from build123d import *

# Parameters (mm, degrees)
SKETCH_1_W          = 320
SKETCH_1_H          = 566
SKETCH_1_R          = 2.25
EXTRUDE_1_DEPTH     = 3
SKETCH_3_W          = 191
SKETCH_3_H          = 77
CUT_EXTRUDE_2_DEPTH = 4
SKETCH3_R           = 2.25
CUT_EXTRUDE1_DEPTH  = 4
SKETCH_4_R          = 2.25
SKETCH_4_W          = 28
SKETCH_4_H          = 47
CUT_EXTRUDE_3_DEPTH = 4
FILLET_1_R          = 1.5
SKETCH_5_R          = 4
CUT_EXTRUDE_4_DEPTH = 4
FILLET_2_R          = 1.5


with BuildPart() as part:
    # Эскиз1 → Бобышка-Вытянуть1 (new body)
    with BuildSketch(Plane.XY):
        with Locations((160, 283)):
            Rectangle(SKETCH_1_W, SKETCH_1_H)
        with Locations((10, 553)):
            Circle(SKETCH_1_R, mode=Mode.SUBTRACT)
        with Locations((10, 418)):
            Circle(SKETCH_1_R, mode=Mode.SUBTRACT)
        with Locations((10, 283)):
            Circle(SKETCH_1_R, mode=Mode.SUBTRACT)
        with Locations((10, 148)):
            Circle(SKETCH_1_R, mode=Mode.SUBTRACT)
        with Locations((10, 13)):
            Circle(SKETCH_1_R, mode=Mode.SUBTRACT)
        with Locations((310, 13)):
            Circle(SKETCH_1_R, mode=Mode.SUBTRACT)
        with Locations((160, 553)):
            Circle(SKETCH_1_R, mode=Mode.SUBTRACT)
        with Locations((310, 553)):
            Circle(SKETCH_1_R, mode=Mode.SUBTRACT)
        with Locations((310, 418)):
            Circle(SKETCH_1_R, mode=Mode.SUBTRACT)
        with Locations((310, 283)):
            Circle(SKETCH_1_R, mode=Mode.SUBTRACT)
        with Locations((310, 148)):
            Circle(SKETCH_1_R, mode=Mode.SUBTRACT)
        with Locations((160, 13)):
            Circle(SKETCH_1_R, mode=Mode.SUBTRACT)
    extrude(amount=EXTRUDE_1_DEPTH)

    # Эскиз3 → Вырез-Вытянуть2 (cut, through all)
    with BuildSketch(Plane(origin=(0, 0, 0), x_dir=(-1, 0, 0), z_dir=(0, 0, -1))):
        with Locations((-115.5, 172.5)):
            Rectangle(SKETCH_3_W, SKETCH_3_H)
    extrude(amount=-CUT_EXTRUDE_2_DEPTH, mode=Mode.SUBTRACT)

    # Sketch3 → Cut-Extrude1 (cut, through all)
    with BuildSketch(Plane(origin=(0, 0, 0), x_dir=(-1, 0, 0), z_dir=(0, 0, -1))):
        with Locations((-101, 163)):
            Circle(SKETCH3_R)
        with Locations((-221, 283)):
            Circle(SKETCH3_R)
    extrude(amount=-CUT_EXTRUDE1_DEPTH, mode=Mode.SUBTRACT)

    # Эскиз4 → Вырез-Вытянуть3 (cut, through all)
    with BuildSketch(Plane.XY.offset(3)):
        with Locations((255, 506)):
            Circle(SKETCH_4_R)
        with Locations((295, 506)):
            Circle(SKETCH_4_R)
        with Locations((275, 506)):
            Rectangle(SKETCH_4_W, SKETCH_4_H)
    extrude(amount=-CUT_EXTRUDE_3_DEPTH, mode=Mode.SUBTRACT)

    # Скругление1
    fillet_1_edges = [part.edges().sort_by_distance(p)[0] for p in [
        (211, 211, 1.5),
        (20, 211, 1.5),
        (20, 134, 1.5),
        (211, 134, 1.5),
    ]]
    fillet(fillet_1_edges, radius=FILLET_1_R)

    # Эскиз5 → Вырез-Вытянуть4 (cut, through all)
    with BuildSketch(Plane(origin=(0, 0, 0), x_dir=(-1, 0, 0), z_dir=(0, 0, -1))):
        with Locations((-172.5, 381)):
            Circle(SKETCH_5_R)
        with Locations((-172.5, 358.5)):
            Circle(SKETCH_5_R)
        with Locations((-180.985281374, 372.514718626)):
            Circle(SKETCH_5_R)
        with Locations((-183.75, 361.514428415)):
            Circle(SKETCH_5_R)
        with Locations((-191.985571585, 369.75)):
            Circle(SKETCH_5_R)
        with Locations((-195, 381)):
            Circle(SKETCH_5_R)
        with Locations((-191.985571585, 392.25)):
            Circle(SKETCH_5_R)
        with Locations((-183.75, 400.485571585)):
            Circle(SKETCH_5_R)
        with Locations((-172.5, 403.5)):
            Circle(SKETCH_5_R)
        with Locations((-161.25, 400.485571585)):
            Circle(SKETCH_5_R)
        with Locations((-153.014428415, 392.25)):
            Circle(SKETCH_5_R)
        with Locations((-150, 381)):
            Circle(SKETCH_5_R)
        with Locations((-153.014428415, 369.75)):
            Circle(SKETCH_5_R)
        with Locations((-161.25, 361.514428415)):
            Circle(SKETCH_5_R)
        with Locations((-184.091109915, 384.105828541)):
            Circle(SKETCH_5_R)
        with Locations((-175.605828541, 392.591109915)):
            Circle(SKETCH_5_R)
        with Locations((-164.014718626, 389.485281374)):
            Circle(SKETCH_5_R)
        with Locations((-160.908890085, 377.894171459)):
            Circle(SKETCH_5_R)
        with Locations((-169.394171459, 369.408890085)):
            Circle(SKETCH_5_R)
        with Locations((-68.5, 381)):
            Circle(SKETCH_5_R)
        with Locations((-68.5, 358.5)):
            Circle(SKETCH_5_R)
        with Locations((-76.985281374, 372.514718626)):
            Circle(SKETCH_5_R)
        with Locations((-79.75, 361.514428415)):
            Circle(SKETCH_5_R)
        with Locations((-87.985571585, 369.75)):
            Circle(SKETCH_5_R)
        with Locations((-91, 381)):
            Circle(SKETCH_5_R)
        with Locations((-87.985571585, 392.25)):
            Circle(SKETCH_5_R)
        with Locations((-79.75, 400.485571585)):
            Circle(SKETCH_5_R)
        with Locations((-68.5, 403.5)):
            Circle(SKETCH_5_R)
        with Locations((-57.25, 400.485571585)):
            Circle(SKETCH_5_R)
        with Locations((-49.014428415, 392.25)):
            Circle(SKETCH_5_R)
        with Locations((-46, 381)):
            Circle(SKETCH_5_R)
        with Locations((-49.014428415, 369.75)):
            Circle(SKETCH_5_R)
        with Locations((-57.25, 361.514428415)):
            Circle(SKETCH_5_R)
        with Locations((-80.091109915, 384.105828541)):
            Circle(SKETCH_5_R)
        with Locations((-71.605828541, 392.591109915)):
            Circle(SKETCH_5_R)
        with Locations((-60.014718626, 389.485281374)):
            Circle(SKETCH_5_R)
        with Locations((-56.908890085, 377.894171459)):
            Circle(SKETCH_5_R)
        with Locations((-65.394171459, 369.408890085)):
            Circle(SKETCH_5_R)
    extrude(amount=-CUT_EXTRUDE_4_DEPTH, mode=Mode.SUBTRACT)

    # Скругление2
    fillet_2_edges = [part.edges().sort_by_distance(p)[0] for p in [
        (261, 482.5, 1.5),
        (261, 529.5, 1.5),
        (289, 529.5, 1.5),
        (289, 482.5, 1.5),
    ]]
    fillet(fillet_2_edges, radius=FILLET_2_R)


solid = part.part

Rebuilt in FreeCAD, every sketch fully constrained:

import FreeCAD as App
import Part
import Sketcher

V = App.Vector
Q = App.Units.Quantity


def edges_at(feature, points):
    """Names of the edges that pass closest to the given points."""
    edges = feature.Shape.Edges
    near = lambda p: min(range(len(edges)), key=lambda i: edges[i].distToShape(Part.Vertex(*p))[0])
    return sorted({f"Edge{near(p) + 1}" for p in points})


def add_polygon(sketch, points):
    """Adds a closed chain of lines whose ends are joined by coincident constraints."""
    first, n = sketch.GeometryCount, len(points)
    for a, b in zip(points, points[1:] + points[:1]):
        sketch.addGeometry(Part.LineSegment(App.Vector(*a, 0), App.Vector(*b, 0)), False)
    for i in range(n):
        sketch.addConstraint(Sketcher.Constraint("Coincident", first + i, 2, first + (i + 1) % n, 1))

doc = App.newDocument("Part")
body = doc.addObject("PartDesign::Body", "Body")

# Sketch on XY plane
sketch1 = doc.addObject("Sketcher::SketchObject", "Sketch")
body.addObject(sketch1)
sketch1.AttachmentSupport = (doc.XY_Plane, [""])
sketch1.MapMode = "FlatFace"
add_polygon(sketch1, [(0, 566), (0, 0), (320, 0), (320, 566)])  # lines 0-3
sketch1.addGeometry(Part.Circle(V(10, 13, 0), V(0, 0, 1), 2.2), False)  # 4
sketch1.addGeometry(Part.Circle(V(10, 148, 0), V(0, 0, 1), 2.2), False)  # 5
sketch1.addGeometry(Part.Circle(V(160, 13, 0), V(0, 0, 1), 2.2), False)  # 6
sketch1.addGeometry(Part.Circle(V(310, 13, 0), V(0, 0, 1), 2.2), False)  # 7
sketch1.addGeometry(Part.Circle(V(310, 148, 0), V(0, 0, 1), 2.2), False)  # 8
sketch1.addGeometry(Part.Circle(V(10, 283, 0), V(0, 0, 1), 2.2), False)  # 9
sketch1.addGeometry(Part.Circle(V(10, 418, 0), V(0, 0, 1), 2.2), False)  # 10
sketch1.addGeometry(Part.Circle(V(10, 553, 0), V(0, 0, 1), 2.2), False)  # 11
sketch1.addGeometry(Part.Circle(V(310, 283, 0), V(0, 0, 1), 2.2), False)  # 12
sketch1.addGeometry(Part.Circle(V(310, 418, 0), V(0, 0, 1), 2.2), False)  # 13
sketch1.addGeometry(Part.Circle(V(160, 553, 0), V(0, 0, 1), 2.2), False)  # 14
sketch1.addGeometry(Part.Circle(V(310, 553, 0), V(0, 0, 1), 2.2), False)  # 15
sketch1.addConstraint([
    Sketcher.Constraint("Vertical", 0),
    Sketcher.Constraint("Horizontal", 1),
    Sketcher.Constraint("Vertical", 2),
    Sketcher.Constraint("Horizontal", 3),
    Sketcher.Constraint("Coincident", 0, 2, -1, 1),
    Sketcher.Constraint("Equal", 4, 5),
    Sketcher.Constraint("Equal", 5, 6),
    Sketcher.Constraint("Equal", 6, 7),
    Sketcher.Constraint("Equal", 7, 8),
    Sketcher.Constraint("Equal", 8, 9),
    Sketcher.Constraint("Equal", 9, 10),
    Sketcher.Constraint("Equal", 10, 11),
    Sketcher.Constraint("Equal", 11, 12),
    Sketcher.Constraint("Equal", 12, 13),
    Sketcher.Constraint("Equal", 13, 14),
    Sketcher.Constraint("Equal", 14, 15),
    Sketcher.Constraint("Horizontal", 4, 3, 6, 3),
    Sketcher.Constraint("Horizontal", 6, 3, 7, 3),
    Sketcher.Constraint("Horizontal", 5, 3, 8, 3),
    Sketcher.Constraint("Horizontal", 9, 3, 12, 3),
    Sketcher.Constraint("Horizontal", 10, 3, 13, 3),
    Sketcher.Constraint("Horizontal", 11, 3, 14, 3),
    Sketcher.Constraint("Horizontal", 14, 3, 15, 3),
    Sketcher.Constraint("Vertical", 4, 3, 5, 3),
    Sketcher.Constraint("Vertical", 7, 3, 8, 3),
    Sketcher.Constraint("Vertical", 5, 3, 9, 3),
    Sketcher.Constraint("Vertical", 9, 3, 10, 3),
    Sketcher.Constraint("Vertical", 10, 3, 11, 3),
    Sketcher.Constraint("Vertical", 8, 3, 12, 3),
    Sketcher.Constraint("Vertical", 12, 3, 13, 3),
    Sketcher.Constraint("Vertical", 6, 3, 14, 3),
    Sketcher.Constraint("Vertical", 13, 3, 15, 3),
    Sketcher.Constraint("Diameter", 4, Q("4.5 mm")),
    Sketcher.Constraint("DistanceX", 1, 1, 1, 2, Q("320 mm")),
    Sketcher.Constraint("DistanceY", 0, 2, 0, 1, Q("566 mm")),
    Sketcher.Constraint("DistanceX", -1, 1, 4, 3, Q("10 mm")),
    Sketcher.Constraint("DistanceY", -1, 1, 4, 3, Q("13 mm")),
    Sketcher.Constraint("DistanceY", -1, 1, 5, 3, Q("148 mm")),
    Sketcher.Constraint("DistanceX", -1, 1, 6, 3, Q("160 mm")),
    Sketcher.Constraint("DistanceX", -1, 1, 7, 3, Q("310 mm")),
    Sketcher.Constraint("DistanceY", -1, 1, 9, 3, Q("283 mm")),
    Sketcher.Constraint("DistanceY", -1, 1, 10, 3, Q("418 mm")),
    Sketcher.Constraint("DistanceY", -1, 1, 11, 3, Q("553 mm")),
])
pad1 = doc.addObject("PartDesign::Pad", "Pad")
body.addObject(pad1)
pad1.Profile = sketch1
pad1.Length = 3

# Sketch on XY plane
sketch2 = doc.addObject("Sketcher::SketchObject", "Sketch001")
body.addObject(sketch2)
sketch2.AttachmentSupport = (doc.XY_Plane, [""])
sketch2.MapMode = "FlatFace"
add_polygon(sketch2, [(211, 211), (211, 134), (20, 134), (20, 211)])  # lines 0-3
sketch2.addConstraint([
    Sketcher.Constraint("Vertical", 0),
    Sketcher.Constraint("Horizontal", 1),
    Sketcher.Constraint("Vertical", 2),
    Sketcher.Constraint("Horizontal", 3),
    Sketcher.Constraint("DistanceX", 1, 2, 1, 1, Q("191 mm")),
    Sketcher.Constraint("DistanceY", 0, 2, 0, 1, Q("77 mm")),
    Sketcher.Constraint("DistanceX", -1, 1, 0, 2, Q("211 mm")),
    Sketcher.Constraint("DistanceY", -1, 1, 0, 2, Q("134 mm")),
])
pocket1 = doc.addObject("PartDesign::Pocket", "Pocket")
body.addObject(pocket1)
pocket1.Profile = sketch2
pocket1.Type = "ThroughAll"
pocket1.Reversed = True

# Sketch on XY plane
sketch3 = doc.addObject("Sketcher::SketchObject", "Sketch002")
body.addObject(sketch3)
sketch3.AttachmentSupport = (doc.XY_Plane, [""])
sketch3.MapMode = "FlatFace"
sketch3.addGeometry([
    Part.Circle(V(101, 163, 0), V(0, 0, 1), 2.2),
    Part.Circle(V(221, 283, 0), V(0, 0, 1), 2.2),
], False)
sketch3.addConstraint([
    Sketcher.Constraint("Equal", 0, 1),
    Sketcher.Constraint("Diameter", 0, Q("4.5 mm")),
    Sketcher.Constraint("DistanceX", -1, 1, 0, 3, Q("101 mm")),
    Sketcher.Constraint("DistanceY", -1, 1, 0, 3, Q("163 mm")),
    Sketcher.Constraint("DistanceX", -1, 1, 1, 3, Q("221 mm")),
    Sketcher.Constraint("DistanceY", -1, 1, 1, 3, Q("283 mm")),
])
pocket2 = doc.addObject("PartDesign::Pocket", "Pocket001")
body.addObject(pocket2)
pocket2.Profile = sketch3
pocket2.Type = "ThroughAll"
pocket2.Reversed = True

# Sketch on XY plane
sketch4 = doc.addObject("Sketcher::SketchObject", "Sketch003")
body.addObject(sketch4)
sketch4.AttachmentSupport = (doc.XY_Plane, [""])
sketch4.MapMode = "FlatFace"
sketch4.AttachmentOffset = App.Placement(V(0, 0, 3), App.Rotation())
sketch4.addGeometry(Part.Circle(V(255, 506, 0), V(0, 0, 1), 2.2), False)  # 0
sketch4.addGeometry(Part.Circle(V(295, 506, 0), V(0, 0, 1), 2.2), False)  # 1
add_polygon(sketch4, [(261, 529.5), (261, 482.5), (289, 482.5), (289, 529.5)])  # lines 2-5
sketch4.addConstraint([
    Sketcher.Constraint("Vertical", 2),
    Sketcher.Constraint("Horizontal", 3),
    Sketcher.Constraint("Vertical", 4),
    Sketcher.Constraint("Horizontal", 5),
    Sketcher.Constraint("Equal", 0, 1),
    Sketcher.Constraint("Horizontal", 0, 3, 1, 3),
    Sketcher.Constraint("Diameter", 0, Q("4.5 mm")),
    Sketcher.Constraint("DistanceX", 3, 1, 3, 2, Q("28 mm")),
    Sketcher.Constraint("DistanceY", 2, 2, 2, 1, Q("47 mm")),
    Sketcher.Constraint("DistanceX", -1, 1, 0, 3, Q("255 mm")),
    Sketcher.Constraint("DistanceY", -1, 1, 0, 3, Q("506 mm")),
    Sketcher.Constraint("DistanceX", -1, 1, 1, 3, Q("295 mm")),
    Sketcher.Constraint("DistanceX", -1, 1, 2, 2, Q("261 mm")),
    Sketcher.Constraint("DistanceY", -1, 1, 2, 2, Q("482.5 mm")),
])
pocket3 = doc.addObject("PartDesign::Pocket", "Pocket002")
body.addObject(pocket3)
pocket3.Profile = sketch4
pocket3.Type = "ThroughAll"
doc.recompute()

fillet = doc.addObject("PartDesign::Fillet", "Fillet")
body.addObject(fillet)
fillet.Base = (pocket3, edges_at(pocket3, [
    (211, 211, 1.5),
    (20, 211, 1.5),
    (20, 134, 1.5),
    (211, 134, 1.5),
]))
fillet.Radius = 1.5

# Sketch on XY plane
sketch5 = doc.addObject("Sketcher::SketchObject", "Sketch004")
body.addObject(sketch5)
sketch5.AttachmentSupport = (doc.XY_Plane, [""])
sketch5.MapMode = "FlatFace"
sketch5.addGeometry([
    Part.Circle(V(172.5, 381, 0), V(0, 0, 1), 4),  # 0
    Part.Circle(V(172.5, 358.5, 0), V(0, 0, 1), 4),  # 1
    Part.Circle(V(181, 372.5, 0), V(0, 0, 1), 4),  # 2
    Part.Circle(V(183.8, 361.5, 0), V(0, 0, 1), 4),  # 3
    Part.Circle(V(192, 369.8, 0), V(0, 0, 1), 4),  # 4
    Part.Circle(V(195, 381, 0), V(0, 0, 1), 4),  # 5
    Part.Circle(V(192, 392.2, 0), V(0, 0, 1), 4),  # 6
    Part.Circle(V(183.8, 400.5, 0), V(0, 0, 1), 4),  # 7
    Part.Circle(V(172.5, 403.5, 0), V(0, 0, 1), 4),  # 8
    Part.Circle(V(161.2, 400.5, 0), V(0, 0, 1), 4),  # 9
    Part.Circle(V(153, 392.2, 0), V(0, 0, 1), 4),  # 10
    Part.Circle(V(150, 381, 0), V(0, 0, 1), 4),  # 11
    Part.Circle(V(153, 369.8, 0), V(0, 0, 1), 4),  # 12
    Part.Circle(V(161.2, 361.5, 0), V(0, 0, 1), 4),  # 13
    Part.Circle(V(184.1, 384.1, 0), V(0, 0, 1), 4),  # 14
    Part.Circle(V(175.6, 392.6, 0), V(0, 0, 1), 4),  # 15
    Part.Circle(V(164, 389.5, 0), V(0, 0, 1), 4),  # 16
    Part.Circle(V(160.9, 377.9, 0), V(0, 0, 1), 4),  # 17
    Part.Circle(V(169.4, 369.4, 0), V(0, 0, 1), 4),  # 18
    Part.Circle(V(68.5, 381, 0), V(0, 0, 1), 4),  # 19
    Part.Circle(V(68.5, 358.5, 0), V(0, 0, 1), 4),  # 20
    Part.Circle(V(77, 372.5, 0), V(0, 0, 1), 4),  # 21
    Part.Circle(V(79.8, 361.5, 0), V(0, 0, 1), 4),  # 22
    Part.Circle(V(88, 369.8, 0), V(0, 0, 1), 4),  # 23
    Part.Circle(V(91, 381, 0), V(0, 0, 1), 4),  # 24
    Part.Circle(V(88, 392.2, 0), V(0, 0, 1), 4),  # 25
    Part.Circle(V(79.8, 400.5, 0), V(0, 0, 1), 4),  # 26
    Part.Circle(V(68.5, 403.5, 0), V(0, 0, 1), 4),  # 27
    Part.Circle(V(57.2, 400.5, 0), V(0, 0, 1), 4),  # 28
    Part.Circle(V(49, 392.2, 0), V(0, 0, 1), 4),  # 29
    Part.Circle(V(46, 381, 0), V(0, 0, 1), 4),  # 30
    Part.Circle(V(49, 369.8, 0), V(0, 0, 1), 4),  # 31
    Part.Circle(V(57.2, 361.5, 0), V(0, 0, 1), 4),  # 32
    Part.Circle(V(80.1, 384.1, 0), V(0, 0, 1), 4),  # 33
    Part.Circle(V(71.6, 392.6, 0), V(0, 0, 1), 4),  # 34
    Part.Circle(V(60, 389.5, 0), V(0, 0, 1), 4),  # 35
    Part.Circle(V(56.9, 377.9, 0), V(0, 0, 1), 4),  # 36
    Part.Circle(V(65.4, 369.4, 0), V(0, 0, 1), 4),  # 37
], False)
sketch5.addConstraint([
    Sketcher.Constraint("Equal", 0, 1),
    Sketcher.Constraint("Equal", 1, 2),
    Sketcher.Constraint("Equal", 2, 3),
    Sketcher.Constraint("Equal", 3, 4),
    Sketcher.Constraint("Equal", 4, 5),
    Sketcher.Constraint("Equal", 5, 6),
    Sketcher.Constraint("Equal", 6, 7),
    Sketcher.Constraint("Equal", 7, 8),
    Sketcher.Constraint("Equal", 8, 9),
    Sketcher.Constraint("Equal", 9, 10),
    Sketcher.Constraint("Equal", 10, 11),
    Sketcher.Constraint("Equal", 11, 12),
    Sketcher.Constraint("Equal", 12, 13),
    Sketcher.Constraint("Equal", 13, 14),
    Sketcher.Constraint("Equal", 14, 15),
    Sketcher.Constraint("Equal", 15, 16),
    Sketcher.Constraint("Equal", 16, 17),
    Sketcher.Constraint("Equal", 17, 18),
    Sketcher.Constraint("Equal", 18, 19),
    Sketcher.Constraint("Equal", 19, 20),
    Sketcher.Constraint("Equal", 20, 21),
    Sketcher.Constraint("Equal", 21, 22),
    Sketcher.Constraint("Equal", 22, 23),
    Sketcher.Constraint("Equal", 23, 24),
    Sketcher.Constraint("Equal", 24, 25),
    Sketcher.Constraint("Equal", 25, 26),
    Sketcher.Constraint("Equal", 26, 27),
    Sketcher.Constraint("Equal", 27, 28),
    Sketcher.Constraint("Equal", 28, 29),
    Sketcher.Constraint("Equal", 29, 30),
    Sketcher.Constraint("Equal", 30, 31),
    Sketcher.Constraint("Equal", 31, 32),
    Sketcher.Constraint("Equal", 32, 33),
    Sketcher.Constraint("Equal", 33, 34),
    Sketcher.Constraint("Equal", 34, 35),
    Sketcher.Constraint("Equal", 35, 36),
    Sketcher.Constraint("Equal", 36, 37),
    Sketcher.Constraint("Horizontal", 0, 3, 5, 3),
    Sketcher.Constraint("Horizontal", 7, 3, 9, 3),
    Sketcher.Constraint("Horizontal", 6, 3, 10, 3),
    Sketcher.Constraint("Horizontal", 5, 3, 11, 3),
    Sketcher.Constraint("Horizontal", 4, 3, 12, 3),
    Sketcher.Constraint("Horizontal", 3, 3, 13, 3),
    Sketcher.Constraint("Horizontal", 11, 3, 19, 3),
    Sketcher.Constraint("Horizontal", 1, 3, 20, 3),
    Sketcher.Constraint("Horizontal", 2, 3, 21, 3),
    Sketcher.Constraint("Horizontal", 13, 3, 22, 3),
    Sketcher.Constraint("Horizontal", 12, 3, 23, 3),
    Sketcher.Constraint("Horizontal", 19, 3, 24, 3),
    Sketcher.Constraint("Horizontal", 10, 3, 25, 3),
    Sketcher.Constraint("Horizontal", 9, 3, 26, 3),
    Sketcher.Constraint("Horizontal", 8, 3, 27, 3),
    Sketcher.Constraint("Horizontal", 26, 3, 28, 3),
    Sketcher.Constraint("Horizontal", 25, 3, 29, 3),
    Sketcher.Constraint("Horizontal", 24, 3, 30, 3),
    Sketcher.Constraint("Horizontal", 23, 3, 31, 3),
    Sketcher.Constraint("Horizontal", 22, 3, 32, 3),
    Sketcher.Constraint("Horizontal", 14, 3, 33, 3),
    Sketcher.Constraint("Horizontal", 15, 3, 34, 3),
    Sketcher.Constraint("Horizontal", 16, 3, 35, 3),
    Sketcher.Constraint("Horizontal", 17, 3, 36, 3),
    Sketcher.Constraint("Horizontal", 18, 3, 37, 3),
    Sketcher.Constraint("Vertical", 0, 3, 1, 3),
    Sketcher.Constraint("Vertical", 4, 3, 6, 3),
    Sketcher.Constraint("Vertical", 3, 3, 7, 3),
    Sketcher.Constraint("Vertical", 1, 3, 8, 3),
    Sketcher.Constraint("Vertical", 10, 3, 12, 3),
    Sketcher.Constraint("Vertical", 9, 3, 13, 3),
    Sketcher.Constraint("Vertical", 19, 3, 20, 3),
    Sketcher.Constraint("Vertical", 23, 3, 25, 3),
    Sketcher.Constraint("Vertical", 22, 3, 26, 3),
    Sketcher.Constraint("Vertical", 20, 3, 27, 3),
    Sketcher.Constraint("Vertical", 29, 3, 31, 3),
    Sketcher.Constraint("Vertical", 28, 3, 32, 3),
    Sketcher.Constraint("Diameter", 0, Q("8 mm")),
    Sketcher.Constraint("DistanceY", -1, 1, 0, 3, Q("381 mm")),
    Sketcher.Constraint("DistanceX", -1, 1, 5, 3, Q("195 mm")),
    Sketcher.Constraint("DistanceX", -1, 1, 11, 3, Q("150 mm")),
    Sketcher.Constraint("DistanceX", -1, 1, 24, 3, Q("91 mm")),
    Sketcher.Constraint("DistanceX", -1, 1, 30, 3, Q("46 mm")),
    Sketcher.Constraint("DistanceX", -1, 1, 0, 3, Q("172.5 mm")),
    Sketcher.Constraint("DistanceY", -1, 1, 1, 3, Q("358.5 mm")),
    Sketcher.Constraint("DistanceY", -1, 1, 8, 3, Q("403.5 mm")),
    Sketcher.Constraint("DistanceX", -1, 1, 19, 3, Q("68.5 mm")),
    Sketcher.Constraint("DistanceY", 4, 3, 6, 3, Q("22.5 mm")),
    Sketcher.Constraint("DistanceX", 9, 3, 7, 3, Q("22.5 mm")),
    Sketcher.Constraint("DistanceX", 28, 3, 26, 3, Q("22.5 mm")),
    Sketcher.Constraint("DistanceX", -1, 1, 3, 3, Q("183.75 mm")),
    Sketcher.Constraint("DistanceY", -1, 1, 4, 3, Q("369.75 mm")),
    Sketcher.Constraint("DistanceX", -1, 1, 22, 3, Q("79.75 mm")),
    Sketcher.Constraint("DistanceX", -1, 1, 2, 3, Q("180.985281 mm")),
    Sketcher.Constraint("DistanceY", -1, 1, 2, 3, Q("372.514719 mm")),
    Sketcher.Constraint("DistanceY", -1, 1, 3, 3, Q("361.514428 mm")),
    Sketcher.Constraint("DistanceX", -1, 1, 4, 3, Q("191.985572 mm")),
    Sketcher.Constraint("DistanceY", -1, 1, 7, 3, Q("400.485572 mm")),
    Sketcher.Constraint("DistanceX", -1, 1, 10, 3, Q("153.014428 mm")),
    Sketcher.Constraint("DistanceX", -1, 1, 14, 3, Q("184.09111 mm")),
    Sketcher.Constraint("DistanceY", -1, 1, 14, 3, Q("384.105829 mm")),
    Sketcher.Constraint("DistanceX", -1, 1, 15, 3, Q("175.605829 mm")),
    Sketcher.Constraint("DistanceY", -1, 1, 15, 3, Q("392.59111 mm")),
    Sketcher.Constraint("DistanceX", -1, 1, 16, 3, Q("164.014719 mm")),
    Sketcher.Constraint("DistanceY", -1, 1, 16, 3, Q("389.485281 mm")),
    Sketcher.Constraint("DistanceX", -1, 1, 17, 3, Q("160.90889 mm")),
    Sketcher.Constraint("DistanceY", -1, 1, 17, 3, Q("377.894171 mm")),
    Sketcher.Constraint("DistanceX", -1, 1, 18, 3, Q("169.394171 mm")),
    Sketcher.Constraint("DistanceY", -1, 1, 18, 3, Q("369.40889 mm")),
    Sketcher.Constraint("DistanceX", -1, 1, 21, 3, Q("76.985281 mm")),
    Sketcher.Constraint("DistanceX", -1, 1, 23, 3, Q("87.985572 mm")),
    Sketcher.Constraint("DistanceX", -1, 1, 29, 3, Q("49.014428 mm")),
    Sketcher.Constraint("DistanceX", -1, 1, 33, 3, Q("80.09111 mm")),
    Sketcher.Constraint("DistanceX", -1, 1, 34, 3, Q("71.605829 mm")),
    Sketcher.Constraint("DistanceX", -1, 1, 35, 3, Q("60.014719 mm")),
    Sketcher.Constraint("DistanceX", -1, 1, 36, 3, Q("56.90889 mm")),
    Sketcher.Constraint("DistanceX", -1, 1, 37, 3, Q("65.394171 mm")),
])
pocket4 = doc.addObject("PartDesign::Pocket", "Pocket003")
body.addObject(pocket4)
pocket4.Profile = sketch5
pocket4.Type = "ThroughAll"
pocket4.Reversed = True
doc.recompute()

fillet2 = doc.addObject("PartDesign::Fillet", "Fillet001")
body.addObject(fillet2)
fillet2.Base = (pocket4, edges_at(pocket4, [
    (261, 482.5, 1.5),
    (261, 529.5, 1.5),
    (289, 529.5, 1.5),
    (289, 482.5, 1.5),
]))
fillet2.Radius = 1.5

doc.recompute()
